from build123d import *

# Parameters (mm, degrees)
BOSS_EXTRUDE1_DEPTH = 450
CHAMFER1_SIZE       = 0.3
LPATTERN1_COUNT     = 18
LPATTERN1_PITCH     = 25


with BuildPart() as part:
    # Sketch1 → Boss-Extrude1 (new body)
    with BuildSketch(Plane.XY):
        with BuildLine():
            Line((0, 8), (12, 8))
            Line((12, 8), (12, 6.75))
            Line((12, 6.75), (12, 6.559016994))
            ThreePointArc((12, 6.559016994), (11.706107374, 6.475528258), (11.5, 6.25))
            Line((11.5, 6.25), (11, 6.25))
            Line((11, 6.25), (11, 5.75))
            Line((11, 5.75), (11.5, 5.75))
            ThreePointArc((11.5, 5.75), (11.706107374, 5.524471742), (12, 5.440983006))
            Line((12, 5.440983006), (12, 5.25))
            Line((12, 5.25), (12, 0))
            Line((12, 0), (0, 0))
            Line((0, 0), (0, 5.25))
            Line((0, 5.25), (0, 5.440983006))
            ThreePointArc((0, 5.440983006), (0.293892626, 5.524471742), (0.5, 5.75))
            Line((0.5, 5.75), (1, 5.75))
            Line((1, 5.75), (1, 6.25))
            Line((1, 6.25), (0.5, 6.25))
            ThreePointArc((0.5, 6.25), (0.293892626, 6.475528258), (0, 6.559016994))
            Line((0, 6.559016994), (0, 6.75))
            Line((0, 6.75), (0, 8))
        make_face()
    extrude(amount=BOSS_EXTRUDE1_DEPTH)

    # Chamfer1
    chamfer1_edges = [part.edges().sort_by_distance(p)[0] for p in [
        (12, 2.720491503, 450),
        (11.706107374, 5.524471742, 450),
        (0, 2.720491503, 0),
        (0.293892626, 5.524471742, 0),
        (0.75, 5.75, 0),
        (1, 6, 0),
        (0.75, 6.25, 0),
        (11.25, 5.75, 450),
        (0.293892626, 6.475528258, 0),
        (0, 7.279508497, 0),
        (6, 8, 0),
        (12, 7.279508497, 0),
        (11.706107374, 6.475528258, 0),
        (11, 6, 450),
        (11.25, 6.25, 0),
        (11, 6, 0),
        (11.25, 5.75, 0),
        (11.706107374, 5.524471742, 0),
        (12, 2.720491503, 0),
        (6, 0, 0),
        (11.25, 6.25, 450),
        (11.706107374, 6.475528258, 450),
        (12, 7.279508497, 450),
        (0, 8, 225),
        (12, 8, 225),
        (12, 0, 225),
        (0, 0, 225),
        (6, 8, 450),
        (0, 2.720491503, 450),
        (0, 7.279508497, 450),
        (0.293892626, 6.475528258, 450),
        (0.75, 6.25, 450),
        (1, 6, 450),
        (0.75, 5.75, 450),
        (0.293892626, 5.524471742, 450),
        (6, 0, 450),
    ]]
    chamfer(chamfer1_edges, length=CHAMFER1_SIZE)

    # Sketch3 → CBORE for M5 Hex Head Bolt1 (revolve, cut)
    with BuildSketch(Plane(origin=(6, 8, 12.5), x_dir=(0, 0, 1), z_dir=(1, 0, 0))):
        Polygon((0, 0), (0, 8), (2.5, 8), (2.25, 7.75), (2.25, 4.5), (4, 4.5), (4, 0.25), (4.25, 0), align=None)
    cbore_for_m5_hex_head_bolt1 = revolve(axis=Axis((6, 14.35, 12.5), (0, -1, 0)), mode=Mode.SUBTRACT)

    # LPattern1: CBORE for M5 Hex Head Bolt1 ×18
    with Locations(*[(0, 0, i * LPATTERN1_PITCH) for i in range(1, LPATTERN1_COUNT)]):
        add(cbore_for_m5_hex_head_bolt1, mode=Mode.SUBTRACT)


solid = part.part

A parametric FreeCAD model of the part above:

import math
import FreeCAD as App
import Part
import Sketcher
from FreeCAD import Vector
Q = App.Units.Quantity


def edges_at(feature, points):
    """Names of the edges that pass closest to the given points."""
    edges = feature.Shape.Edges
    near = lambda p: min(range(len(edges)), key=lambda i: edges[i].distToShape(Part.Vertex(*p))[0])
    return sorted({f"Edge{near(p) + 1}" for p in points})


def add_polygon(sketch, points):
    """Adds a closed chain of lines whose ends are joined by coincident constraints."""
    first, n = sketch.GeometryCount, len(points)
    for a, b in zip(points, points[1:] + points[:1]):
        sketch.addGeometry(Part.LineSegment(App.Vector(*a, 0), App.Vector(*b, 0)), False)
    for i in range(n):
        sketch.addConstraint(Sketcher.Constraint("Coincident", first + i, 2, first + (i + 1) % n, 1))

doc = App.newDocument("Part")
body = doc.addObject("PartDesign::Body", "Body")

sketch1 = body.newObject("Sketcher::SketchObject", "Sketch")
sketch1.AttachmentSupport = (doc.getObject("XY_Plane"), [""])
sketch1.MapMode = "FlatFace"
sketch1.addGeometry([
    Part.LineSegment(Vector(12, 8, 0), Vector(0, 8, 0)),
    Part.LineSegment(Vector(0, 8, 0), Vector(0, 6.559017, 0)),
    Part.ArcOfCircle(Part.Circle(Vector(0, 6, 0), Vector(0, 0, 1), 0.559017), math.radians(26.565051), math.radians(90)),
    Part.LineSegment(Vector(0.5, 6.25, 0), Vector(1, 6.25, 0)),
    Part.LineSegment(Vector(1, 6.25, 0), Vector(1, 5.75, 0)),
    Part.LineSegment(Vector(1, 5.75, 0), Vector(0.5, 5.75, 0)),
    Part.ArcOfCircle(Part.Circle(Vector(0, 6, 0), Vector(0, 0, 1), 0.559017), math.radians(-90), math.radians(-26.565051)),
    Part.LineSegment(Vector(0, 5.440983, 0), Vector(0, 0, 0)),
    Part.LineSegment(Vector(0, 0, 0), Vector(12, 0, 0)),
    Part.LineSegment(Vector(12, 0, 0), Vector(12, 5.440983, 0)),
    Part.ArcOfCircle(Part.Circle(Vector(12, 6, 0), Vector(0, 0, 1), 0.559017), math.radians(-153.434949), math.radians(-90)),
    Part.LineSegment(Vector(11.5, 5.75, 0), Vector(11, 5.75, 0)),
    Part.LineSegment(Vector(11, 5.75, 0), Vector(11, 6.25, 0)),
    Part.LineSegment(Vector(11, 6.25, 0), Vector(11.5, 6.25, 0)),
    Part.ArcOfCircle(Part.Circle(Vector(12, 6, 0), Vector(0, 0, 1), 0.559017), math.radians(90), math.radians(153.434949)),
    Part.LineSegment(Vector(12, 6.559017, 0), Vector(12, 8, 0)),
], False)
sketch1.addConstraint([
    Sketcher.Constraint("Coincident", 0, 2, 1, 1),
    Sketcher.Constraint("Coincident", 1, 2, 2, 2),
    Sketcher.Constraint("Coincident", 2, 1, 3, 1),
    Sketcher.Constraint("Coincident", 3, 2, 4, 1),
    Sketcher.Constraint("Coincident", 4, 2, 5, 1),
    Sketcher.Constraint("Coincident", 5, 2, 6, 2),
    Sketcher.Constraint("Coincident", 6, 1, 7, 1),
    Sketcher.Constraint("Coincident", 7, 2, 8, 1),
    Sketcher.Constraint("Coincident", 8, 2, 9, 1),
    Sketcher.Constraint("Coincident", 9, 2, 10, 2),
    Sketcher.Constraint("Coincident", 10, 1, 11, 1),
    Sketcher.Constraint("Coincident", 11, 2, 12, 1),
    Sketcher.Constraint("Coincident", 12, 2, 13, 1),
    Sketcher.Constraint("Coincident", 13, 2, 14, 2),
    Sketcher.Constraint("Coincident", 14, 1, 15, 1),
    Sketcher.Constraint("Coincident", 15, 2, 0, 1),
    Sketcher.Constraint("Horizontal", 0),
    Sketcher.Constraint("Vertical", 1),
    Sketcher.Constraint("Horizontal", 3),
    Sketcher.Constraint("Vertical", 4),
    Sketcher.Constraint("Horizontal", 5),
    Sketcher.Constraint("Vertical", 7),
    Sketcher.Constraint("Horizontal", 8),
    Sketcher.Constraint("Vertical", 9),
    Sketcher.Constraint("Horizontal", 11),
    Sketcher.Constraint("Vertical", 12),
    Sketcher.Constraint("Horizontal", 13),
    Sketcher.Constraint("Vertical", 15),
    Sketcher.Constraint("Coincident", 7, 2, -1, 1),
    Sketcher.Constraint("Coincident", 6, 3, 2, 3),
    Sketcher.Constraint("Coincident", 14, 3, 10, 3),
    Sketcher.Constraint("Equal", 2, 6),
    Sketcher.Constraint("Equal", 6, 10),
    Sketcher.Constraint("Equal", 10, 14),
    Sketcher.Constraint("PointOnObject", 2, 3, -2),
    Sketcher.Constraint("PointOnObject", 0, 2, -2),
    Sketcher.Constraint("Horizontal", 6, 3, 10, 3),
    Sketcher.Constraint("Horizontal", 5, 2, 10, 1),
    Sketcher.Constraint("Horizontal", 3, 2, 12, 2),
    Sketcher.Constraint("Vertical", 2, 1, 5, 2),
    Sketcher.Constraint("Vertical", 14, 3, 8, 2),
    Sketcher.Constraint("Vertical", 9, 2, 14, 1),
    Sketcher.Constraint("Equal", 5, 11),
    Sketcher.Constraint("Equal", 13, 4),
    Sketcher.Constraint("DistanceX", 0, 2, 0, 1, 12.0),
    Sketcher.Constraint("DistanceX", 3, 1, 3, 2, 0.5),
    Sketcher.Constraint("DistanceY", -1, 1, 2, 3, 6.0),
    Sketcher.Constraint("DistanceY", -1, 1, 0, 2, 8.0),
    Sketcher.Constraint("DistanceX", -1, 1, 3, 2, 1.0),
])
pad1 = body.newObject("PartDesign::Pad", "Pad")
pad1.Profile = sketch1
pad1.Length = 450
doc.recompute()

chamfer = body.newObject("PartDesign::Chamfer", "Chamfer")
chamfer.Base = (pad1, edges_at(pad1, [
    (12, 2.72, 450),
    (11.706, 5.524, 450),
    (0, 2.72, 0),
    (0.294, 5.524, 0),
    (0.75, 5.75, 0),
    (1, 6, 0),
    (0.75, 6.25, 0),
    (11.25, 5.75, 450),
    (0.294, 6.476, 0),
    (0, 7.28, 0),
    (6, 8, 0),
    (12, 7.28, 0),
    (11.706, 6.476, 0),
    (11, 6, 450),
    (11.25, 6.25, 0),
    (11, 6, 0),
    (11.25, 5.75, 0),
    (11.706, 5.524, 0),
    (12, 2.72, 0),
    (6, 0, 0),
    (11.25, 6.25, 450),
    (11.706, 6.476, 450),
    (12, 7.28, 450),
    (0, 8, 225),
    (12, 8, 225),
    (12, 0, 225),
    (0, 0, 225),
    (6, 8, 450),
    (0, 2.72, 450),
    (0, 7.28, 450),
    (0.294, 6.476, 450),
    (0.75, 6.25, 450),
    (1, 6, 450),
    (0.75, 5.75, 450),
    (0.294, 5.524, 450),
    (6, 0, 450),
]))
chamfer.Size = 0.3

sketch2 = body.newObject("Sketcher::SketchObject", "Sketch001")
sketch2.AttachmentSupport = (doc.getObject("YZ_Plane"), [""])
sketch2.MapMode = "FlatFace"
sketch2.AttachmentOffset = App.Placement(Vector(0, 0, 6), App.Rotation())
add_polygon(sketch2, [(0, 12.5), (8, 12.5), (8, 16.75), (7.75, 16.5), (3.5, 16.5), (3.5, 14.75), (0.25, 14.75), (0, 15)])
sketch2.addGeometry(Part.LineSegment(Vector(8, 12.5, 0), Vector(0, 12.5, 0)), True)
sketch2.addConstraint([
    Sketcher.Constraint("Horizontal", 0),
    Sketcher.Constraint("Vertical", 1),
    Sketcher.Constraint("Horizontal", 3),
    Sketcher.Constraint("Vertical", 4),
    Sketcher.Constraint("Horizontal", 5),
    Sketcher.Constraint("Vertical", 7),
    Sketcher.Constraint("Horizontal", 8),
    Sketcher.Constraint("Coincident", 8, 1, 0, 2),
    Sketcher.Constraint("PointOnObject", 6, 2, -2),
    Sketcher.Constraint("PointOnObject", 8, 2, -2),
    Sketcher.Constraint("Perpendicular", 2, 6),
    Sketcher.Constraint("Equal", 3, 1),
    Sketcher.Constraint("Equal", 2, 6),
    Sketcher.Constraint("DistanceX", 0, 1, 0, 2, 8.0),
    Sketcher.Constraint("Angle", 2, Q("-135 deg")),
    Sketcher.Constraint("DistanceY", 7, 2, 7, 1, 2.5),
    Sketcher.Constraint("DistanceY", -1, 1, 6, 2, 15.0),
    Sketcher.Constraint("DistanceY", 0, 2, 2, 2, 4.0),
    Sketcher.Constraint("DistanceY", 4, 2, 1, 2, 2.0),
])
groove = body.newObject("PartDesign::Groove", "Groove")
groove.Profile = sketch2
groove.ReferenceAxis = (sketch2, ["Axis0"])
groove.Angle = 360
doc.recompute()

linearpattern = body.newObject("PartDesign::LinearPattern", "LinearPattern")
linearpattern.Originals = [groove]
linearpattern.Direction = (doc.getObject("Z_Axis"), [""])
linearpattern.Mode = "offset"
linearpattern.Offset = 25
linearpattern.Occurrences = 18
body.Tip = linearpattern

doc.recompute()
